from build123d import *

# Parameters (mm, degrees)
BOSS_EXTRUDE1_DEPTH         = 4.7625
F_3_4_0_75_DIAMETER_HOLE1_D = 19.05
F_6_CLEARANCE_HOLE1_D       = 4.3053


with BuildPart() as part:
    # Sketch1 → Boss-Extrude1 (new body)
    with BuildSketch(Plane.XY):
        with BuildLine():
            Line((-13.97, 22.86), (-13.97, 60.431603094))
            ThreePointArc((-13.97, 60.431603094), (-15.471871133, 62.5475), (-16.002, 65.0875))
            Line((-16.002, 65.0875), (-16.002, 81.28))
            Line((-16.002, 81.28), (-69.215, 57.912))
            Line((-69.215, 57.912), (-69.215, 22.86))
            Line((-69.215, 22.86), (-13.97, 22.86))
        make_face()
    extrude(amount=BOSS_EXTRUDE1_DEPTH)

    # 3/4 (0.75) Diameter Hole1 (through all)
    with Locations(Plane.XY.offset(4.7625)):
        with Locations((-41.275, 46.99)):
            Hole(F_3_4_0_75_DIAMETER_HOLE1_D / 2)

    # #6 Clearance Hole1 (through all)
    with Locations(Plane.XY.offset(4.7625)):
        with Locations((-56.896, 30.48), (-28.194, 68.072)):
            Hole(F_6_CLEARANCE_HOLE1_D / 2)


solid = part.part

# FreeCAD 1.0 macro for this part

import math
import FreeCAD as App
import Part
import Sketcher
from FreeCAD import Vector
Q = App.Units.Quantity

doc = App.newDocument("Part")
body = doc.addObject("PartDesign::Body", "Body")

sketch1 = body.newObject("Sketcher::SketchObject", "Sketch")
sketch1.AttachmentSupport = (doc.getObject("XY_Plane"), [""])
sketch1.MapMode = "FlatFace"
sketch1.addGeometry([
    Part.LineSegment(Vector(-14, 23, 0), Vector(-14, 60, 0)),
    Part.ArcOfCircle(Part.Circle(Vector(-10, 65, 0), Vector(0, 0, 1), 6), math.radians(180), math.radians(227)),
    Part.LineSegment(Vector(-16, 65, 0), Vector(-16, 81, 0)),
    Part.LineSegment(Vector(-16, 81, 0), Vector(-69, 58, 0)),
    Part.LineSegment(Vector(-69, 58, 0), Vector(-69, 23, 0)),
    Part.LineSegment(Vector(-69, 23, 0), Vector(-14, 23, 0)),
], False)
sketch1.addConstraint([
    Sketcher.Constraint("Coincident", 0, 2, 1, 2),
    Sketcher.Constraint("Tangent", 1, 1, 2, 1),
    Sketcher.Constraint("Coincident", 2, 2, 3, 1),
    Sketcher.Constraint("Coincident", 3, 2, 4, 1),
    Sketcher.Constraint("Coincident", 4, 2, 5, 1),
    Sketcher.Constraint("Coincident", 5, 2, 0, 1),
    Sketcher.Constraint("Vertical", 0),
    Sketcher.Constraint("Vertical", 2),
    Sketcher.Constraint("Vertical", 4),
    Sketcher.Constraint("Horizontal", 5),
    Sketcher.Constraint("Radius", 1, Q("0.25 in")),
    Sketcher.Constraint("DistanceY", 4, 2, 4, 1, Q("1.38 in")),
    Sketcher.Constraint("DistanceY", -1, 1, 2, 2, Q("3.2 in")),
    Sketcher.Constraint("DistanceY", -1, 1, 4, 2, Q("0.9 in")),
    Sketcher.Constraint("DistanceX", 5, 1, 5, 2, Q("2.175 in")),
    Sketcher.Constraint("DistanceX", 1, 3, -1, 1, Q("0.38 in")),
    Sketcher.Constraint("DistanceX", 0, 2, -1, 1, Q("0.55 in")),
    Sketcher.Constraint("DistanceY", 2, 1, 2, 2, Q("0.6375 in")),
])
pad1 = body.newObject("PartDesign::Pad", "Pad")
pad1.Profile = sketch1
pad1.Length = Q("0.1875 in")

sketch2 = body.newObject("Sketcher::SketchObject", "Sketch001")
sketch2.AttachmentSupport = (doc.getObject("XY_Plane"), [""])
sketch2.MapMode = "FlatFace"
sketch2.AttachmentOffset = App.Placement(Vector(0, 0, 0.1875 * 25.4), App.Rotation())
sketch2.addGeometry(Part.Circle(Vector(-41, 47, 0), Vector(0, 0, 1), 10), False)
sketch2.addConstraint([
    Sketcher.Constraint("Diameter", 0, Q("0.75 in")),
    Sketcher.Constraint("DistanceY", -1, 1, 0, 3, Q("1.85 in")),
    Sketcher.Constraint("DistanceX", 0, 3, -1, 1, Q("1.625 in")),
])
doc.recompute()
hole = body.newObject("PartDesign::Hole", "Hole")
hole.Profile = sketch2
hole.ThreadType = "None"
hole.Diameter = Q("0.75 in")
hole.DepthType = "ThroughAll"

sketch3 = body.newObject("Sketcher::SketchObject", "Sketch002")
sketch3.AttachmentSupport = (doc.getObject("XY_Plane"), [""])
sketch3.MapMode = "FlatFace"
sketch3.AttachmentOffset = App.Placement(Vector(0, 0, 0.1875 * 25.4), App.Rotation())
sketch3.addGeometry([
    Part.Circle(Vector(-56.9, 30.5, 0), Vector(0, 0, 1), 2.2),
    Part.Circle(Vector(-28.2, 68.1, 0), Vector(0, 0, 1), 2.2),
], False)
sketch3.addConstraint([
    Sketcher.Constraint("Equal", 0, 1),
    Sketcher.Constraint("Diameter", 0, Q("0.1695 in")),
    Sketcher.Constraint("DistanceY", -1, 1, 0, 3, Q("1.2 in")),
    Sketcher.Constraint("DistanceX", 0, 3, -1, 1, Q("2.24 in")),
    Sketcher.Constraint("DistanceX", 1, 3, -1, 1, Q("1.11 in")),
    Sketcher.Constraint("DistanceY", -1, 1, 1, 3, Q("2.68 in")),
])
doc.recompute()
hole2 = body.newObject("PartDesign::Hole", "Hole001")
hole2.Profile = sketch3
hole2.ThreadType = "None"
hole2.Diameter = Q("0.1695 in")
hole2.DepthType = "ThroughAll"

doc.recompute()
